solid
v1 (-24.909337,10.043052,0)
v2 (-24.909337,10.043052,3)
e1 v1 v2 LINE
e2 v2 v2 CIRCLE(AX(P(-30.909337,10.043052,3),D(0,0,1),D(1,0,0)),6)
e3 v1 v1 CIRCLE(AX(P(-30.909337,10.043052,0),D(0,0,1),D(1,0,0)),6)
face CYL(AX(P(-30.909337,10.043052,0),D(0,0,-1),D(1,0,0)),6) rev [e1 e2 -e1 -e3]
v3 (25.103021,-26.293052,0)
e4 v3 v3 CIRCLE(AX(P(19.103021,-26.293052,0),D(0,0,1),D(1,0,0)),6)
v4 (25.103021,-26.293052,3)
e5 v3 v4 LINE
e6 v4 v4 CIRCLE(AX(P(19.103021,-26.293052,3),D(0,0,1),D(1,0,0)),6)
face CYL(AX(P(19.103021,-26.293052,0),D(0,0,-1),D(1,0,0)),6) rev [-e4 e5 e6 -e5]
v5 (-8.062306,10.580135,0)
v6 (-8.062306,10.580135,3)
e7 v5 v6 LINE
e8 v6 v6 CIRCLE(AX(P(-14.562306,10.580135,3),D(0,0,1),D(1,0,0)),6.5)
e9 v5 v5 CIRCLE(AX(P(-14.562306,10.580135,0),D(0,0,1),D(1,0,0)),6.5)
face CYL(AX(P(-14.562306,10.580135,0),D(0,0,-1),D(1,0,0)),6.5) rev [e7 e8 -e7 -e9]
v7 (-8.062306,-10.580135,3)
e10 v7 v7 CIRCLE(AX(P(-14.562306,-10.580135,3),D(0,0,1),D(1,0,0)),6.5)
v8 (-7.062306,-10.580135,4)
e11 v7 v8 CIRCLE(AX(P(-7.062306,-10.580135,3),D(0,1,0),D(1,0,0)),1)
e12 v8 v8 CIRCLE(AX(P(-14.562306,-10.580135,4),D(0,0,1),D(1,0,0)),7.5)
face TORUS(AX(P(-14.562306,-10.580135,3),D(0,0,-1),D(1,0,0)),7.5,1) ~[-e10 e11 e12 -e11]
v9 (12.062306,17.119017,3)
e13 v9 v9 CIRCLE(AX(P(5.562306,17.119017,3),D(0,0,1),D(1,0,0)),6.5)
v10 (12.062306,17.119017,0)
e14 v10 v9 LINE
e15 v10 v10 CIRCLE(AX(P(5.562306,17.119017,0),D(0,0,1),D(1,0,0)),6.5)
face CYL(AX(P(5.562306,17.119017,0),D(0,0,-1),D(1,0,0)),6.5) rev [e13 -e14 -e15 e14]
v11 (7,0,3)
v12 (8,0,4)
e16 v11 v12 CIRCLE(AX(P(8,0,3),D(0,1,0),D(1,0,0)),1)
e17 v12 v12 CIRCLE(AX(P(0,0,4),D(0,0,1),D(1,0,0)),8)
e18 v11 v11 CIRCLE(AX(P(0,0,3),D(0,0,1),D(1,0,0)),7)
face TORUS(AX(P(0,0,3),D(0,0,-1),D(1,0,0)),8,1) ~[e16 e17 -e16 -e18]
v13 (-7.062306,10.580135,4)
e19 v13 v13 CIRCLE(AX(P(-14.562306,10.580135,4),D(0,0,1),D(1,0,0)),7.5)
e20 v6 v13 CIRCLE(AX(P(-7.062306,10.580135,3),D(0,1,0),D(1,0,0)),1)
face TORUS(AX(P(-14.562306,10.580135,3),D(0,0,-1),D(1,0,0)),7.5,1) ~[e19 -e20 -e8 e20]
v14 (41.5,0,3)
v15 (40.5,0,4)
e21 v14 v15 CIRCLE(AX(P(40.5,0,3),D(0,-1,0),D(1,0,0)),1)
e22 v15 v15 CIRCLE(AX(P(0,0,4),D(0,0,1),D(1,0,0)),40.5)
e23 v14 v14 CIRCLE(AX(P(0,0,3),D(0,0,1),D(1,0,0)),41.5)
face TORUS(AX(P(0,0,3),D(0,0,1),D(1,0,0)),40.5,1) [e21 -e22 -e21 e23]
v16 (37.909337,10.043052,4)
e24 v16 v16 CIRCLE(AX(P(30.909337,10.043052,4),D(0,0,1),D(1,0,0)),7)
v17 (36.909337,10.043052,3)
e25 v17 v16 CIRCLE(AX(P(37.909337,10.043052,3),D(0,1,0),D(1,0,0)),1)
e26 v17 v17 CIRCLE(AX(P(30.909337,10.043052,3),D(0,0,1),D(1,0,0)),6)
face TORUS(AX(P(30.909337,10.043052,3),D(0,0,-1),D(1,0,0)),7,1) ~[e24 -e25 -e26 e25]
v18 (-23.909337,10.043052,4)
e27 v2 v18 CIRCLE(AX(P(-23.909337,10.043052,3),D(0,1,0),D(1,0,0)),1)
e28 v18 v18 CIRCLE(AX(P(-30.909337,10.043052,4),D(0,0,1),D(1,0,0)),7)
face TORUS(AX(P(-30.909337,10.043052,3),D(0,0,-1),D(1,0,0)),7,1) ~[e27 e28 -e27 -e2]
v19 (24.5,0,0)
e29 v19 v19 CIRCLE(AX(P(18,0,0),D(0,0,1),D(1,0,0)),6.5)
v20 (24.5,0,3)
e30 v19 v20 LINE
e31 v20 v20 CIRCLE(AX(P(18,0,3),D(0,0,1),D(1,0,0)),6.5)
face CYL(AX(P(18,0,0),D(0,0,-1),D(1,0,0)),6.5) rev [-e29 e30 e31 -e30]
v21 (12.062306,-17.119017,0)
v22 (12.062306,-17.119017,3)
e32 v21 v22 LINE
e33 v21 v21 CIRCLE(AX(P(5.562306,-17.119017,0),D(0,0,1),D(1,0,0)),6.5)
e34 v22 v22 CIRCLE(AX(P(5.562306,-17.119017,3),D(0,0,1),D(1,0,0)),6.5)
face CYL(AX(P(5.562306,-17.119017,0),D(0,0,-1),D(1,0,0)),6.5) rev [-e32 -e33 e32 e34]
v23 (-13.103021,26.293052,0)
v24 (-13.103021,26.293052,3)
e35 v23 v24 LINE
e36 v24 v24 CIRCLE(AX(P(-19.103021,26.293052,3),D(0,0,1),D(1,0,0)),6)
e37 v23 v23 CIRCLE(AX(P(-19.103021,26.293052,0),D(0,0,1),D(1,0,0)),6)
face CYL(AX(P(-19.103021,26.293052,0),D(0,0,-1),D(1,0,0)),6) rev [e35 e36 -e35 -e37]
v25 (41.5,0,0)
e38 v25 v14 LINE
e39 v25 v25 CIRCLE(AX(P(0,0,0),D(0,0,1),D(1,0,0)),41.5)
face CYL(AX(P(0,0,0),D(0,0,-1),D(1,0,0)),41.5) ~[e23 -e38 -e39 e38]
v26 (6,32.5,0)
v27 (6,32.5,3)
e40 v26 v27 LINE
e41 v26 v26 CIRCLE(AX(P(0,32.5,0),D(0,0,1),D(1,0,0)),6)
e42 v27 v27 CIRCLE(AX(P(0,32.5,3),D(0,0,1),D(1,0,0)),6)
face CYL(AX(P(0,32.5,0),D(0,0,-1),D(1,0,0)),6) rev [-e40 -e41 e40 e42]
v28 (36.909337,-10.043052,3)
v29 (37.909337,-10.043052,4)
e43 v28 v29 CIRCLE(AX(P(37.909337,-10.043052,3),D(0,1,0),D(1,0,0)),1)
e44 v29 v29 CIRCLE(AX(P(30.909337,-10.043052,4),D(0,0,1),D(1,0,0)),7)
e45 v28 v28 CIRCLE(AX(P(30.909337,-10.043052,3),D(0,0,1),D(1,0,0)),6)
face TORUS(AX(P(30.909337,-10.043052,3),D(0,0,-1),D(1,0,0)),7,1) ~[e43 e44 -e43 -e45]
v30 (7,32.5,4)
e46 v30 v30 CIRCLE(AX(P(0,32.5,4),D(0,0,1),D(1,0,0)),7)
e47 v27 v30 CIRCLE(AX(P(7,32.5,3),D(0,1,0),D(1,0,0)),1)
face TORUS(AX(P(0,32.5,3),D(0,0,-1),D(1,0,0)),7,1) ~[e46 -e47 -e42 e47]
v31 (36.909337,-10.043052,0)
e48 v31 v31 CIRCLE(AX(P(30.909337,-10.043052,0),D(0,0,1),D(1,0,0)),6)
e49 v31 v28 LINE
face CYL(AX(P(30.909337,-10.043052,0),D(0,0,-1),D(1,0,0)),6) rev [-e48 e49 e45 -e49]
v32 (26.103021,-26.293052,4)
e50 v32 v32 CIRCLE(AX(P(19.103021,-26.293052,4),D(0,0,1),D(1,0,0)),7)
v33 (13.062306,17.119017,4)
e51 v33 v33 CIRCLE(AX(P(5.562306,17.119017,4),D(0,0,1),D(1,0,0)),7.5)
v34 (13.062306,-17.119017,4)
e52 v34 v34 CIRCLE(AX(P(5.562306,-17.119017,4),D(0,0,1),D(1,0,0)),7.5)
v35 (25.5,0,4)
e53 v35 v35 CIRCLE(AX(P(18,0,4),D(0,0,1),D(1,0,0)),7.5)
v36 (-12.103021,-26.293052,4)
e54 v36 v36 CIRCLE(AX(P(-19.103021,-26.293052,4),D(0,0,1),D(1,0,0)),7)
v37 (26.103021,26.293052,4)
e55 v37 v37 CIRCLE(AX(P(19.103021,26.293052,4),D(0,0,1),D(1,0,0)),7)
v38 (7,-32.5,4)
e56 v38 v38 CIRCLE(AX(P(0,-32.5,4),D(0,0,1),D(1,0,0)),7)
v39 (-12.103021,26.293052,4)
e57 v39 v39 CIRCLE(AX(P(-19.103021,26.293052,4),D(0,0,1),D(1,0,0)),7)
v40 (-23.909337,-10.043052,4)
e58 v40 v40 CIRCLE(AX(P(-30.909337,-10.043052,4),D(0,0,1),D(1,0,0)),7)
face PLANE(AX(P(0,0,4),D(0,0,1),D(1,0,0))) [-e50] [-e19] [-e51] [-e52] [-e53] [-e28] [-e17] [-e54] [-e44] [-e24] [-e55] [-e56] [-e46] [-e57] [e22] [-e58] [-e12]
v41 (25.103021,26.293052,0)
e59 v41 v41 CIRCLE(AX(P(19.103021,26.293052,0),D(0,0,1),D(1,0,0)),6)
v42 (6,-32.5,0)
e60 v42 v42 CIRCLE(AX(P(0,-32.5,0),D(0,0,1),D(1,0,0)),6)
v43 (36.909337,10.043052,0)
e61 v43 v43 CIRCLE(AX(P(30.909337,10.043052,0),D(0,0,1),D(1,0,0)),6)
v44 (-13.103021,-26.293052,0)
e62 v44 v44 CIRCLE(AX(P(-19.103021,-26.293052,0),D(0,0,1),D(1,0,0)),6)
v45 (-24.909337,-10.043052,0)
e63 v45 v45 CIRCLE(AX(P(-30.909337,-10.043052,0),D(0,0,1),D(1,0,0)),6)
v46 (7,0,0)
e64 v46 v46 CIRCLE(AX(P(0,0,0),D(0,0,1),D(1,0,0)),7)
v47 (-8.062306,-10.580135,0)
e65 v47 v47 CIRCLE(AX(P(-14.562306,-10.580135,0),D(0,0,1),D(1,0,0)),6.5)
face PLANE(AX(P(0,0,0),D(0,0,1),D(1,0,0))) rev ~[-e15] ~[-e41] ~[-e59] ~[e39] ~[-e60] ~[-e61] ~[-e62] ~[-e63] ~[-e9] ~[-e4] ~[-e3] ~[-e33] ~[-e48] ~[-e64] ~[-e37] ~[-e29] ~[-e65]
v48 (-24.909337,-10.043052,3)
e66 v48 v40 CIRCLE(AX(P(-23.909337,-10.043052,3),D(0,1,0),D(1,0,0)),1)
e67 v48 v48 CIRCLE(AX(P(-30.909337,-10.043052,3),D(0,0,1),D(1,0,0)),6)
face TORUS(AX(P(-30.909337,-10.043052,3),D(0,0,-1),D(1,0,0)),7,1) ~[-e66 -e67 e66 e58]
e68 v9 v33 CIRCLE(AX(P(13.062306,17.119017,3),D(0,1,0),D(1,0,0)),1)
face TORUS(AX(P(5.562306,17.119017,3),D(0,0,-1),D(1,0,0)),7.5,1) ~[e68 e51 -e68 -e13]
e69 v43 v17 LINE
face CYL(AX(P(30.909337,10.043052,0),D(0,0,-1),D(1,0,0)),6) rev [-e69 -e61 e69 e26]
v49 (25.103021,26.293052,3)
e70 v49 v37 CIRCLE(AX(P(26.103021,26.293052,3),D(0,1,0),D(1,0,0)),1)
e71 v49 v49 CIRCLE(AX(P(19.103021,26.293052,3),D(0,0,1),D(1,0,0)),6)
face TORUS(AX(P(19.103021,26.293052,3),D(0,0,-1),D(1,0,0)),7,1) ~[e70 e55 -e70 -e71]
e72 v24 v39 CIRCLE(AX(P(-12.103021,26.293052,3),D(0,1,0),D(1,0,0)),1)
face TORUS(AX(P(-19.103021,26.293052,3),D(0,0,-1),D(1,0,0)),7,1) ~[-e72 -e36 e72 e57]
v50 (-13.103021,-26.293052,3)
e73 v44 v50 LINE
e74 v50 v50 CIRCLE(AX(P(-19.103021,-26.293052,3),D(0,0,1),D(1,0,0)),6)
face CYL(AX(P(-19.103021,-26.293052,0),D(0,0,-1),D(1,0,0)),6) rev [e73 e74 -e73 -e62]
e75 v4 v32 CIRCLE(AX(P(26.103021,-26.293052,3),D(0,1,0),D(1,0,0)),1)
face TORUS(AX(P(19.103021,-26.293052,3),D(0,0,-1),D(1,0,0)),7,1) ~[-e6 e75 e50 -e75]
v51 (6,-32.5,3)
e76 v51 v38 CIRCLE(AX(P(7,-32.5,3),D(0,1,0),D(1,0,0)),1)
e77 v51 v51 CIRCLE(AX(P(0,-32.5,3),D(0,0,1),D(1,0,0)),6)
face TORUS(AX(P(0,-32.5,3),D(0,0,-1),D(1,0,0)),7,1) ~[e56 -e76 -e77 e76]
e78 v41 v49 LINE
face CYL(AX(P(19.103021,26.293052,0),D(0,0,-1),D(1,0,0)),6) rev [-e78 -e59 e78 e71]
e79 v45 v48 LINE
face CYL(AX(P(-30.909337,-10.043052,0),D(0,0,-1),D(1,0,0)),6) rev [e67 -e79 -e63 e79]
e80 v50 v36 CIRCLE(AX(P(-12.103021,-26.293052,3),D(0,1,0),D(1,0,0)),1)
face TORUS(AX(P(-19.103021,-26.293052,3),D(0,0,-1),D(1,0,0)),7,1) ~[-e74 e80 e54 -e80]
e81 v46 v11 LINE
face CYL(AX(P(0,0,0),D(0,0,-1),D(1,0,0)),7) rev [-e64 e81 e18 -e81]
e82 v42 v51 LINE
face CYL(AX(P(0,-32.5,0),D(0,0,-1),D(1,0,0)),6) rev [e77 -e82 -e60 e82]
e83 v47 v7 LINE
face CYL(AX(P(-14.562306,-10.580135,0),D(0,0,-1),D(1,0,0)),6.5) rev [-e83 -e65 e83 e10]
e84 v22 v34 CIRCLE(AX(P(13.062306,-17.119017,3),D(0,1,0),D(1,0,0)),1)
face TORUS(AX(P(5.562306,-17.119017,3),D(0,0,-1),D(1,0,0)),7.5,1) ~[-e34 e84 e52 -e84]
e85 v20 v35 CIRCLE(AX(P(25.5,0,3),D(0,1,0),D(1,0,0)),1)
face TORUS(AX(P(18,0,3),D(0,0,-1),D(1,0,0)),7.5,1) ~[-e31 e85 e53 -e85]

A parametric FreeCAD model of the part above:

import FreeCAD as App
import Part
import Sketcher
from FreeCAD import Vector


def edges_at(feature, points):
    """Names of the edges that pass closest to the given points."""
    edges = feature.Shape.Edges
    near = lambda p: min(range(len(edges)), key=lambda i: edges[i].distToShape(Part.Vertex(*p))[0])
    return sorted({f"Edge{near(p) + 1}" for p in points})

doc = App.newDocument("Part")
params = doc.addObject("Spreadsheet::Sheet", "Params")
for row, (alias, value) in enumerate([
    ("sketch1_diameter", "83 mm"),
    ("sketch1_diameter2", "12 mm"),
    ("sketch1_diameter3", "13 mm"),
    ("sketch1_diameter4", "14 mm"),
    ("pad1_length", "4 mm"),
    ("fillet_radius", "1 mm"),
], start=1):
    params.set(f"A{row}", alias)
    params.set(f"B{row}", "=" + value)
    params.setAlias(f"B{row}", alias)

body = doc.addObject("PartDesign::Body", "Body")

# Sketch on XY plane
sketch1 = body.newObject("Sketcher::SketchObject", "Sketch")
sketch1.AttachmentSupport = (doc.getObject("XY_Plane"), [""])
sketch1.MapMode = "FlatFace"
sketch1.addGeometry([
    Part.Circle(Vector(0, 0, 0), Vector(0, 0, 1), 41.5),  # 0
    Part.Circle(Vector(-19.103021, -26.293052, 0), Vector(0, 0, 1), 6),  # 1
    Part.Circle(Vector(0, -32.5, 0), Vector(0, 0, 1), 6),  # 2
    Part.Circle(Vector(-30.909337, -10.043052, 0), Vector(0, 0, 1), 6),  # 3
    Part.Circle(Vector(-14.562306, -10.580135, 0), Vector(0, 0, 1), 6.5),  # 4
    Part.Circle(Vector(19.103021, -26.293052, 0), Vector(0, 0, 1), 6),  # 5
    Part.Circle(Vector(5.562306, -17.119017, 0), Vector(0, 0, 1), 6.5),  # 6
    Part.Circle(Vector(30.909337, -10.043052, 0), Vector(0, 0, 1), 6),  # 7
    Part.Circle(Vector(-30.909337, 10.043052, 0), Vector(0, 0, 1), 6),  # 8
    Part.Circle(Vector(0, 0, 0), Vector(0, 0, 1), 7),  # 9
    Part.Circle(Vector(-14.562306, 10.580135, 0), Vector(0, 0, 1), 6.5),  # 10
    Part.Circle(Vector(-19.103021, 26.293052, 0), Vector(0, 0, 1), 6),  # 11
    Part.Circle(Vector(0, 32.5, 0), Vector(0, 0, 1), 6),  # 12
    Part.Circle(Vector(18, 0, 0), Vector(0, 0, 1), 6.5),  # 13
    Part.Circle(Vector(5.562306, 17.119017, 0), Vector(0, 0, 1), 6.5),  # 14
    Part.Circle(Vector(30.909337, 10.043052, 0), Vector(0, 0, 1), 6),  # 15
    Part.Circle(Vector(19.103021, 26.293052, 0), Vector(0, 0, 1), 6),  # 16
], False)
sketch1.addConstraint([
    Sketcher.Constraint("Coincident", 0, 3, -1, 1),
    Sketcher.Constraint("Coincident", 9, 3, -1, 1),
    Sketcher.Constraint("Equal", 1, 2),
    Sketcher.Constraint("Equal", 2, 3),
    Sketcher.Constraint("Equal", 3, 5),
    Sketcher.Constraint("Equal", 4, 6),
    Sketcher.Constraint("Equal", 5, 7),
    Sketcher.Constraint("Equal", 7, 8),
    Sketcher.Constraint("Equal", 6, 10),
    Sketcher.Constraint("Equal", 8, 11),
    Sketcher.Constraint("Equal", 11, 12),
    Sketcher.Constraint("Equal", 10, 13),
    Sketcher.Constraint("Equal", 13, 14),
    Sketcher.Constraint("Equal", 12, 15),
    Sketcher.Constraint("Equal", 15, 16),
    Sketcher.Constraint("Symmetric", 7, 3, 8, 3, -1, 1),
    Sketcher.Constraint("Symmetric", 5, 3, 11, 3, -1, 1),
    Sketcher.Constraint("Symmetric", 2, 3, 12, 3, -1, 1),
    Sketcher.Constraint("Symmetric", 3, 3, 15, 3, -1, 1),
    Sketcher.Constraint("Symmetric", 1, 3, 16, 3, -1, 1),
    Sketcher.Constraint("Symmetric", 1, 3, 5, 3, -2),
    Sketcher.Constraint("Symmetric", 3, 3, 7, 3, -2),
    Sketcher.Constraint("Symmetric", 4, 3, 10, 3, -1),
    Sketcher.Constraint("Symmetric", 6, 3, 14, 3, -1),
    Sketcher.Constraint("PointOnObject", 2, 3, -2),
    Sketcher.Constraint("PointOnObject", 13, 3, -1),
    Sketcher.Constraint("Diameter", 0, 83.0),
    Sketcher.Constraint("Diameter", 1, 12.0),
    Sketcher.Constraint("Diameter", 4, 13.0),
    Sketcher.Constraint("Diameter", 9, 14.0),
    Sketcher.Constraint("DistanceX", -1, 1, 13, 3, 18.0),
    Sketcher.Constraint("DistanceY", 2, 3, -1, 1, 32.5),
    Sketcher.Constraint("DistanceY", 1, 3, 3, 3, 16.25),
    Sketcher.Constraint("DistanceX", 1, 3, -1, 1, 19.103021),
    Sketcher.Constraint("DistanceY", 1, 3, -1, 1, 26.293052),
    Sketcher.Constraint("DistanceX", 3, 3, 4, 3, 16.347031),
    Sketcher.Constraint("DistanceX", 4, 3, 6, 3, 20.124612),
    Sketcher.Constraint("DistanceY", 6, 3, 4, 3, 6.538882),
    Sketcher.Constraint("DistanceX", 6, 3, 7, 3, 25.347031),
    Sketcher.Constraint("DistanceY", 6, 3, 8, 3, 27.162069),
])
sketch1.setExpression("Constraints[26]", "Params.sketch1_diameter")
sketch1.setExpression("Constraints[27]", "Params.sketch1_diameter2")
sketch1.setExpression("Constraints[28]", "Params.sketch1_diameter3")
sketch1.setExpression("Constraints[29]", "Params.sketch1_diameter4")
pad1 = body.newObject("PartDesign::Pad", "Pad")
pad1.Profile = sketch1
pad1.setExpression("Length", "Params.pad1_length")
doc.recompute()

fillet = body.newObject("PartDesign::Fillet", "Fillet")
fillet.Base = (pad1, edges_at(pad1, [
    (-41.5, 0, 4),
    (-25.103, -26.293, 4),
    (-36.909, -10.043, 4),
    (-21.062, -10.58, 4),
    (-6, -32.5, 4),
    (13.103, -26.293, 4),
    (-0.938, -17.119, 4),
    (24.909, -10.043, 4),
    (-36.909, 10.043, 4),
    (-21.062, 10.58, 4),
    (-25.103, 26.293, 4),
    (-7, 0, 4),
    (11.5, 0, 4),
    (-0.938, 17.119, 4),
    (24.909, 10.043, 4),
    (13.103, 26.293, 4),
    (-6, 32.5, 4),
]))
fillet.setExpression("Radius", "Params.fillet_radius")

doc.recompute()
